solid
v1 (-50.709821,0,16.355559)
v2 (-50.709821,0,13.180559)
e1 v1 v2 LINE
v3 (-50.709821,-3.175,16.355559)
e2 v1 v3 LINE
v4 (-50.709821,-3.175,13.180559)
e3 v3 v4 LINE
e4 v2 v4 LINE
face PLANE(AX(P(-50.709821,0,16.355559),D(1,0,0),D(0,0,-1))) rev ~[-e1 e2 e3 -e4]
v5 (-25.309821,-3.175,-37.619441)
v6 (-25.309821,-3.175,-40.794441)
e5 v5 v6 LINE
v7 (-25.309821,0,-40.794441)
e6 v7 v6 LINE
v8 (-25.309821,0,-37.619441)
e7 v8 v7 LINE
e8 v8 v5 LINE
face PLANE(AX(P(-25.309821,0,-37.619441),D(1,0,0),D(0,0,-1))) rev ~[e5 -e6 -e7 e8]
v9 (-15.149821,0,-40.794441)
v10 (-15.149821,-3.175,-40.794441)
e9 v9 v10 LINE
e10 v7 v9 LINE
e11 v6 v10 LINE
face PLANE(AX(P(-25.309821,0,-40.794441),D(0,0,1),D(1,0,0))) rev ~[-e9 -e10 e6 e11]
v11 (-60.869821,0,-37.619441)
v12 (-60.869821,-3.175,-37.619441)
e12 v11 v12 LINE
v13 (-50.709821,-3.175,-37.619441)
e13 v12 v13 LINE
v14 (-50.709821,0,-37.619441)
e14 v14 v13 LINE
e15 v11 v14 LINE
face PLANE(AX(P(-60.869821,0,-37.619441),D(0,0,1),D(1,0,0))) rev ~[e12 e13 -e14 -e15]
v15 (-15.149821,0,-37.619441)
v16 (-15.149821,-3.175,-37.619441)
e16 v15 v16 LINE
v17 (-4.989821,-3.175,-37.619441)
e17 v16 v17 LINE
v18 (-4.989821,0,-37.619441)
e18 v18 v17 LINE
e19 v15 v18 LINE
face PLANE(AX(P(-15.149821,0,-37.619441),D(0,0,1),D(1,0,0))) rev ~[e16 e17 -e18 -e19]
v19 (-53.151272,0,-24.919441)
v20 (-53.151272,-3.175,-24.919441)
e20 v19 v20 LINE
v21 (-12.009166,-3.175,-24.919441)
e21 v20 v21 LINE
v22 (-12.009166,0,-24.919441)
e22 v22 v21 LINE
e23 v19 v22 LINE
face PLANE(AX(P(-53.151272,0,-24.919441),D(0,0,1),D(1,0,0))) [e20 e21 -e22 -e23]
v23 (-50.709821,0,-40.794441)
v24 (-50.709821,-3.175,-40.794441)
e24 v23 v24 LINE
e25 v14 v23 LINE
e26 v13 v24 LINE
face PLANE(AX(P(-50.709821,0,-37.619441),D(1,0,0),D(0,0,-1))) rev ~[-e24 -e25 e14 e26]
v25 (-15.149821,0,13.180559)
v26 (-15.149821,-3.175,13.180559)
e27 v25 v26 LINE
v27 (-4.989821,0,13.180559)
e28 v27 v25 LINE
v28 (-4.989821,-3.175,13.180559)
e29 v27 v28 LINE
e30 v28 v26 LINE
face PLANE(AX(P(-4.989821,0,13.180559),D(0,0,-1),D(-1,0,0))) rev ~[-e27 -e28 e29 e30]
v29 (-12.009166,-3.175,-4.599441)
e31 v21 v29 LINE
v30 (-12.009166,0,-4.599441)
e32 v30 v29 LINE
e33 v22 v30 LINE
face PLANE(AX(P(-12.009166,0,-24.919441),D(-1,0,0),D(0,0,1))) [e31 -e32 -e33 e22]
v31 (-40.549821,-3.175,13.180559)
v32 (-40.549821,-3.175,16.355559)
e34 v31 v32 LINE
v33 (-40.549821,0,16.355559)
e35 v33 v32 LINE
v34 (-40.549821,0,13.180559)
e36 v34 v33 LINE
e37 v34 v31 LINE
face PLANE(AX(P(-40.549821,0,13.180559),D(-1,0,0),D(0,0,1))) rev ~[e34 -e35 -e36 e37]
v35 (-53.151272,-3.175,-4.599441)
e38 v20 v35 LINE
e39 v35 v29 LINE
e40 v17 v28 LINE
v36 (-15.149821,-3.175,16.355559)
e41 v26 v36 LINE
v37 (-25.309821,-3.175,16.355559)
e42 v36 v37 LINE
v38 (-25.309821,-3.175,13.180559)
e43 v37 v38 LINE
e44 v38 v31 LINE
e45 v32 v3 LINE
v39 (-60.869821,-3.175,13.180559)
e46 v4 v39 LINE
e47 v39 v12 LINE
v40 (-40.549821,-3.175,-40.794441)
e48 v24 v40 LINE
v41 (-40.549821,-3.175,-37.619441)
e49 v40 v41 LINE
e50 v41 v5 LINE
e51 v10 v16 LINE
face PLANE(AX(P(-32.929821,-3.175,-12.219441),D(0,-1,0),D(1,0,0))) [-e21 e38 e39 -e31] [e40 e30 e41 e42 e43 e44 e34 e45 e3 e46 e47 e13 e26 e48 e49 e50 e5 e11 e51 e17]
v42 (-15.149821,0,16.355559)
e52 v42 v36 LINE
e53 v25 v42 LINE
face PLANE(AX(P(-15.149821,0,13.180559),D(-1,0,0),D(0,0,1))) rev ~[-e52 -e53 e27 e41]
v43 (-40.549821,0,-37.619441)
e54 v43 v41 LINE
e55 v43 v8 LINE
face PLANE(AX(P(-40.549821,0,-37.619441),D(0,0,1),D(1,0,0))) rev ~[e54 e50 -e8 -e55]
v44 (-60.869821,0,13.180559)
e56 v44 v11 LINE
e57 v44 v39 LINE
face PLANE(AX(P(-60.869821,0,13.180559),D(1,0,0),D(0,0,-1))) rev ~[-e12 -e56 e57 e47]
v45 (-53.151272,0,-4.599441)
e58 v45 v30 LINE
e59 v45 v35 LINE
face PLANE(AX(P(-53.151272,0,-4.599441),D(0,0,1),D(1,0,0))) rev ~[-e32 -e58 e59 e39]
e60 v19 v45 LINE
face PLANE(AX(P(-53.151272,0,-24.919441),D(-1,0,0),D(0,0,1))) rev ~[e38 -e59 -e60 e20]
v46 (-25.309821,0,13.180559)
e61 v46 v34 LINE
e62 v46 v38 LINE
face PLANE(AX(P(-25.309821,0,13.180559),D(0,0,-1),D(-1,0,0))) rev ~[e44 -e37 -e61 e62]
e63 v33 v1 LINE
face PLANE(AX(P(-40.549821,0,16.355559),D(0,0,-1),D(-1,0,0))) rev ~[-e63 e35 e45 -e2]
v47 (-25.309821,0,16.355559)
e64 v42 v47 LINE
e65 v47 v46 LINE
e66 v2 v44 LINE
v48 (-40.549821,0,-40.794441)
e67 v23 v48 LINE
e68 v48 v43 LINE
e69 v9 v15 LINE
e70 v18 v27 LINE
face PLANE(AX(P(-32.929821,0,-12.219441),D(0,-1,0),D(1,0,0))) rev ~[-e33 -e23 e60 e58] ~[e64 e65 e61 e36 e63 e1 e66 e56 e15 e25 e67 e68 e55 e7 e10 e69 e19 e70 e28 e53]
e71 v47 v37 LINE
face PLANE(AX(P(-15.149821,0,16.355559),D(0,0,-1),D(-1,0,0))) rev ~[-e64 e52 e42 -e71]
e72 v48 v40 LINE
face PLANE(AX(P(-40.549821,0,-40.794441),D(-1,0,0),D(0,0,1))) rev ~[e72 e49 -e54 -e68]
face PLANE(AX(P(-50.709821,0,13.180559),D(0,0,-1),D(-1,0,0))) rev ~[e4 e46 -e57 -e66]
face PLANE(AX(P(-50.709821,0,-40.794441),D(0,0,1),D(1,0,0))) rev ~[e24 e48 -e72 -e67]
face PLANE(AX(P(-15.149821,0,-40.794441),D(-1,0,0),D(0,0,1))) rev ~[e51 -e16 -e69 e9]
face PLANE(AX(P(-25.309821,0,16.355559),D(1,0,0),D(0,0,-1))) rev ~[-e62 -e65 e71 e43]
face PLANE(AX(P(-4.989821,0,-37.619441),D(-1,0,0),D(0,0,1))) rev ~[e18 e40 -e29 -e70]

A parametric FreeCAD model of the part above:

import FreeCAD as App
import Part
import Sketcher
Q = App.Units.Quantity


def add_polygon(sketch, points):
    """Adds a closed chain of lines whose ends are joined by coincident constraints."""
    first, n = sketch.GeometryCount, len(points)
    for a, b in zip(points, points[1:] + points[:1]):
        sketch.addGeometry(Part.LineSegment(App.Vector(*a, 0), App.Vector(*b, 0)), False)
    for i in range(n):
        sketch.addConstraint(Sketcher.Constraint("Coincident", first + i, 2, first + (i + 1) % n, 1))

doc = App.newDocument("Part")
body = doc.addObject("PartDesign::Body", "Body")

# Sketch on XZ plane
sketch1 = doc.addObject("Sketcher::SketchObject", "Sketch")
body.addObject(sketch1)
sketch1.AttachmentSupport = (doc.XZ_Plane, [""])
sketch1.MapMode = "FlatFace"
add_polygon(sketch1, [(-50.7, 13.2), (-60.9, 13.2), (-60.9, -37.6), (-50.7, -37.6), (-50.7, -40.8), (-40.5, -40.8), (-40.5, -37.6), (-25.3, -37.6), (-25.3, -40.8), (-15.1, -40.8), (-15.1, -37.6), (-5, -37.6), (-5, 13.2), (-15.1, 13.2), (-15.1, 16.4), (-25.3, 16.4), (-25.3, 13.2), (-40.5, 13.2), (-40.5, 16.4), (-50.7, 16.4)])  # lines 0-19
add_polygon(sketch1, [(-12, -24.9), (-53.2, -24.9), (-53.2, -4.6), (-12, -4.6)])  # lines 20-23
sketch1.addConstraint([
    Sketcher.Constraint("Horizontal", 0),
    Sketcher.Constraint("Vertical", 1),
    Sketcher.Constraint("Horizontal", 2),
    Sketcher.Constraint("Vertical", 3),
    Sketcher.Constraint("Horizontal", 4),
    Sketcher.Constraint("Vertical", 5),
    Sketcher.Constraint("Horizontal", 6),
    Sketcher.Constraint("Vertical", 7),
    Sketcher.Constraint("Horizontal", 8),
    Sketcher.Constraint("Vertical", 9),
    Sketcher.Constraint("Horizontal", 10),
    Sketcher.Constraint("Vertical", 11),
    Sketcher.Constraint("Horizontal", 12),
    Sketcher.Constraint("Vertical", 13),
    Sketcher.Constraint("Horizontal", 14),
    Sketcher.Constraint("Vertical", 15),
    Sketcher.Constraint("Horizontal", 16),
    Sketcher.Constraint("Vertical", 17),
    Sketcher.Constraint("Horizontal", 18),
    Sketcher.Constraint("Vertical", 19),
    Sketcher.Constraint("Horizontal", 20),
    Sketcher.Constraint("Vertical", 21),
    Sketcher.Constraint("Horizontal", 22),
    Sketcher.Constraint("Vertical", 23),
    Sketcher.Constraint("Horizontal", 2, 2, 5, 2),
    Sketcher.Constraint("Horizontal", 4, 2, 7, 2),
    Sketcher.Constraint("Horizontal", 6, 2, 9, 2),
    Sketcher.Constraint("Horizontal", 0, 2, 11, 2),
    Sketcher.Constraint("Horizontal", 12, 2, 15, 2),
    Sketcher.Constraint("Horizontal", 14, 2, 17, 2),
    Sketcher.Constraint("Vertical", 9, 2, 12, 2),
    Sketcher.Constraint("Vertical", 7, 2, 14, 2),
    Sketcher.Constraint("Vertical", 5, 2, 16, 2),
    Sketcher.Constraint("Vertical", 3, 2, 18, 2),
    Sketcher.Constraint("Equal", 2, 4),
    Sketcher.Constraint("Equal", 4, 8),
    Sketcher.Constraint("Equal", 8, 10),
    Sketcher.Constraint("Equal", 9, 13),
    Sketcher.Constraint("DistanceY", 1, 2, 1, 1, Q("2 in")),
    Sketcher.Constraint("DistanceX", 0, 2, 0, 1, Q("0.4 in")),
    Sketcher.Constraint("DistanceX", 6, 1, 6, 2, Q("0.6 in")),
    Sketcher.Constraint("DistanceY", 21, 1, 21, 2, Q("0.8 in")),
    Sketcher.Constraint("DistanceY", 2, 2, 20, 2, Q("0.5 in")),
    Sketcher.Constraint("DistanceY", 3, 2, 3, 1, Q("0.125 in")),
    Sketcher.Constraint("DistanceX", 20, 2, 20, 1, 41.142106),
    Sketcher.Constraint("DistanceX", 0, 2, -1, 1, 60.869821),
    Sketcher.Constraint("DistanceY", -1, 1, 0, 2, 13.180559),
    Sketcher.Constraint("DistanceX", 20, 2, 2, 2, 2.441451),
])
pad1 = doc.addObject("PartDesign::Pad", "Pad")
body.addObject(pad1)
pad1.Profile = sketch1
pad1.Length = Q("0.125 in")

doc.recompute()
